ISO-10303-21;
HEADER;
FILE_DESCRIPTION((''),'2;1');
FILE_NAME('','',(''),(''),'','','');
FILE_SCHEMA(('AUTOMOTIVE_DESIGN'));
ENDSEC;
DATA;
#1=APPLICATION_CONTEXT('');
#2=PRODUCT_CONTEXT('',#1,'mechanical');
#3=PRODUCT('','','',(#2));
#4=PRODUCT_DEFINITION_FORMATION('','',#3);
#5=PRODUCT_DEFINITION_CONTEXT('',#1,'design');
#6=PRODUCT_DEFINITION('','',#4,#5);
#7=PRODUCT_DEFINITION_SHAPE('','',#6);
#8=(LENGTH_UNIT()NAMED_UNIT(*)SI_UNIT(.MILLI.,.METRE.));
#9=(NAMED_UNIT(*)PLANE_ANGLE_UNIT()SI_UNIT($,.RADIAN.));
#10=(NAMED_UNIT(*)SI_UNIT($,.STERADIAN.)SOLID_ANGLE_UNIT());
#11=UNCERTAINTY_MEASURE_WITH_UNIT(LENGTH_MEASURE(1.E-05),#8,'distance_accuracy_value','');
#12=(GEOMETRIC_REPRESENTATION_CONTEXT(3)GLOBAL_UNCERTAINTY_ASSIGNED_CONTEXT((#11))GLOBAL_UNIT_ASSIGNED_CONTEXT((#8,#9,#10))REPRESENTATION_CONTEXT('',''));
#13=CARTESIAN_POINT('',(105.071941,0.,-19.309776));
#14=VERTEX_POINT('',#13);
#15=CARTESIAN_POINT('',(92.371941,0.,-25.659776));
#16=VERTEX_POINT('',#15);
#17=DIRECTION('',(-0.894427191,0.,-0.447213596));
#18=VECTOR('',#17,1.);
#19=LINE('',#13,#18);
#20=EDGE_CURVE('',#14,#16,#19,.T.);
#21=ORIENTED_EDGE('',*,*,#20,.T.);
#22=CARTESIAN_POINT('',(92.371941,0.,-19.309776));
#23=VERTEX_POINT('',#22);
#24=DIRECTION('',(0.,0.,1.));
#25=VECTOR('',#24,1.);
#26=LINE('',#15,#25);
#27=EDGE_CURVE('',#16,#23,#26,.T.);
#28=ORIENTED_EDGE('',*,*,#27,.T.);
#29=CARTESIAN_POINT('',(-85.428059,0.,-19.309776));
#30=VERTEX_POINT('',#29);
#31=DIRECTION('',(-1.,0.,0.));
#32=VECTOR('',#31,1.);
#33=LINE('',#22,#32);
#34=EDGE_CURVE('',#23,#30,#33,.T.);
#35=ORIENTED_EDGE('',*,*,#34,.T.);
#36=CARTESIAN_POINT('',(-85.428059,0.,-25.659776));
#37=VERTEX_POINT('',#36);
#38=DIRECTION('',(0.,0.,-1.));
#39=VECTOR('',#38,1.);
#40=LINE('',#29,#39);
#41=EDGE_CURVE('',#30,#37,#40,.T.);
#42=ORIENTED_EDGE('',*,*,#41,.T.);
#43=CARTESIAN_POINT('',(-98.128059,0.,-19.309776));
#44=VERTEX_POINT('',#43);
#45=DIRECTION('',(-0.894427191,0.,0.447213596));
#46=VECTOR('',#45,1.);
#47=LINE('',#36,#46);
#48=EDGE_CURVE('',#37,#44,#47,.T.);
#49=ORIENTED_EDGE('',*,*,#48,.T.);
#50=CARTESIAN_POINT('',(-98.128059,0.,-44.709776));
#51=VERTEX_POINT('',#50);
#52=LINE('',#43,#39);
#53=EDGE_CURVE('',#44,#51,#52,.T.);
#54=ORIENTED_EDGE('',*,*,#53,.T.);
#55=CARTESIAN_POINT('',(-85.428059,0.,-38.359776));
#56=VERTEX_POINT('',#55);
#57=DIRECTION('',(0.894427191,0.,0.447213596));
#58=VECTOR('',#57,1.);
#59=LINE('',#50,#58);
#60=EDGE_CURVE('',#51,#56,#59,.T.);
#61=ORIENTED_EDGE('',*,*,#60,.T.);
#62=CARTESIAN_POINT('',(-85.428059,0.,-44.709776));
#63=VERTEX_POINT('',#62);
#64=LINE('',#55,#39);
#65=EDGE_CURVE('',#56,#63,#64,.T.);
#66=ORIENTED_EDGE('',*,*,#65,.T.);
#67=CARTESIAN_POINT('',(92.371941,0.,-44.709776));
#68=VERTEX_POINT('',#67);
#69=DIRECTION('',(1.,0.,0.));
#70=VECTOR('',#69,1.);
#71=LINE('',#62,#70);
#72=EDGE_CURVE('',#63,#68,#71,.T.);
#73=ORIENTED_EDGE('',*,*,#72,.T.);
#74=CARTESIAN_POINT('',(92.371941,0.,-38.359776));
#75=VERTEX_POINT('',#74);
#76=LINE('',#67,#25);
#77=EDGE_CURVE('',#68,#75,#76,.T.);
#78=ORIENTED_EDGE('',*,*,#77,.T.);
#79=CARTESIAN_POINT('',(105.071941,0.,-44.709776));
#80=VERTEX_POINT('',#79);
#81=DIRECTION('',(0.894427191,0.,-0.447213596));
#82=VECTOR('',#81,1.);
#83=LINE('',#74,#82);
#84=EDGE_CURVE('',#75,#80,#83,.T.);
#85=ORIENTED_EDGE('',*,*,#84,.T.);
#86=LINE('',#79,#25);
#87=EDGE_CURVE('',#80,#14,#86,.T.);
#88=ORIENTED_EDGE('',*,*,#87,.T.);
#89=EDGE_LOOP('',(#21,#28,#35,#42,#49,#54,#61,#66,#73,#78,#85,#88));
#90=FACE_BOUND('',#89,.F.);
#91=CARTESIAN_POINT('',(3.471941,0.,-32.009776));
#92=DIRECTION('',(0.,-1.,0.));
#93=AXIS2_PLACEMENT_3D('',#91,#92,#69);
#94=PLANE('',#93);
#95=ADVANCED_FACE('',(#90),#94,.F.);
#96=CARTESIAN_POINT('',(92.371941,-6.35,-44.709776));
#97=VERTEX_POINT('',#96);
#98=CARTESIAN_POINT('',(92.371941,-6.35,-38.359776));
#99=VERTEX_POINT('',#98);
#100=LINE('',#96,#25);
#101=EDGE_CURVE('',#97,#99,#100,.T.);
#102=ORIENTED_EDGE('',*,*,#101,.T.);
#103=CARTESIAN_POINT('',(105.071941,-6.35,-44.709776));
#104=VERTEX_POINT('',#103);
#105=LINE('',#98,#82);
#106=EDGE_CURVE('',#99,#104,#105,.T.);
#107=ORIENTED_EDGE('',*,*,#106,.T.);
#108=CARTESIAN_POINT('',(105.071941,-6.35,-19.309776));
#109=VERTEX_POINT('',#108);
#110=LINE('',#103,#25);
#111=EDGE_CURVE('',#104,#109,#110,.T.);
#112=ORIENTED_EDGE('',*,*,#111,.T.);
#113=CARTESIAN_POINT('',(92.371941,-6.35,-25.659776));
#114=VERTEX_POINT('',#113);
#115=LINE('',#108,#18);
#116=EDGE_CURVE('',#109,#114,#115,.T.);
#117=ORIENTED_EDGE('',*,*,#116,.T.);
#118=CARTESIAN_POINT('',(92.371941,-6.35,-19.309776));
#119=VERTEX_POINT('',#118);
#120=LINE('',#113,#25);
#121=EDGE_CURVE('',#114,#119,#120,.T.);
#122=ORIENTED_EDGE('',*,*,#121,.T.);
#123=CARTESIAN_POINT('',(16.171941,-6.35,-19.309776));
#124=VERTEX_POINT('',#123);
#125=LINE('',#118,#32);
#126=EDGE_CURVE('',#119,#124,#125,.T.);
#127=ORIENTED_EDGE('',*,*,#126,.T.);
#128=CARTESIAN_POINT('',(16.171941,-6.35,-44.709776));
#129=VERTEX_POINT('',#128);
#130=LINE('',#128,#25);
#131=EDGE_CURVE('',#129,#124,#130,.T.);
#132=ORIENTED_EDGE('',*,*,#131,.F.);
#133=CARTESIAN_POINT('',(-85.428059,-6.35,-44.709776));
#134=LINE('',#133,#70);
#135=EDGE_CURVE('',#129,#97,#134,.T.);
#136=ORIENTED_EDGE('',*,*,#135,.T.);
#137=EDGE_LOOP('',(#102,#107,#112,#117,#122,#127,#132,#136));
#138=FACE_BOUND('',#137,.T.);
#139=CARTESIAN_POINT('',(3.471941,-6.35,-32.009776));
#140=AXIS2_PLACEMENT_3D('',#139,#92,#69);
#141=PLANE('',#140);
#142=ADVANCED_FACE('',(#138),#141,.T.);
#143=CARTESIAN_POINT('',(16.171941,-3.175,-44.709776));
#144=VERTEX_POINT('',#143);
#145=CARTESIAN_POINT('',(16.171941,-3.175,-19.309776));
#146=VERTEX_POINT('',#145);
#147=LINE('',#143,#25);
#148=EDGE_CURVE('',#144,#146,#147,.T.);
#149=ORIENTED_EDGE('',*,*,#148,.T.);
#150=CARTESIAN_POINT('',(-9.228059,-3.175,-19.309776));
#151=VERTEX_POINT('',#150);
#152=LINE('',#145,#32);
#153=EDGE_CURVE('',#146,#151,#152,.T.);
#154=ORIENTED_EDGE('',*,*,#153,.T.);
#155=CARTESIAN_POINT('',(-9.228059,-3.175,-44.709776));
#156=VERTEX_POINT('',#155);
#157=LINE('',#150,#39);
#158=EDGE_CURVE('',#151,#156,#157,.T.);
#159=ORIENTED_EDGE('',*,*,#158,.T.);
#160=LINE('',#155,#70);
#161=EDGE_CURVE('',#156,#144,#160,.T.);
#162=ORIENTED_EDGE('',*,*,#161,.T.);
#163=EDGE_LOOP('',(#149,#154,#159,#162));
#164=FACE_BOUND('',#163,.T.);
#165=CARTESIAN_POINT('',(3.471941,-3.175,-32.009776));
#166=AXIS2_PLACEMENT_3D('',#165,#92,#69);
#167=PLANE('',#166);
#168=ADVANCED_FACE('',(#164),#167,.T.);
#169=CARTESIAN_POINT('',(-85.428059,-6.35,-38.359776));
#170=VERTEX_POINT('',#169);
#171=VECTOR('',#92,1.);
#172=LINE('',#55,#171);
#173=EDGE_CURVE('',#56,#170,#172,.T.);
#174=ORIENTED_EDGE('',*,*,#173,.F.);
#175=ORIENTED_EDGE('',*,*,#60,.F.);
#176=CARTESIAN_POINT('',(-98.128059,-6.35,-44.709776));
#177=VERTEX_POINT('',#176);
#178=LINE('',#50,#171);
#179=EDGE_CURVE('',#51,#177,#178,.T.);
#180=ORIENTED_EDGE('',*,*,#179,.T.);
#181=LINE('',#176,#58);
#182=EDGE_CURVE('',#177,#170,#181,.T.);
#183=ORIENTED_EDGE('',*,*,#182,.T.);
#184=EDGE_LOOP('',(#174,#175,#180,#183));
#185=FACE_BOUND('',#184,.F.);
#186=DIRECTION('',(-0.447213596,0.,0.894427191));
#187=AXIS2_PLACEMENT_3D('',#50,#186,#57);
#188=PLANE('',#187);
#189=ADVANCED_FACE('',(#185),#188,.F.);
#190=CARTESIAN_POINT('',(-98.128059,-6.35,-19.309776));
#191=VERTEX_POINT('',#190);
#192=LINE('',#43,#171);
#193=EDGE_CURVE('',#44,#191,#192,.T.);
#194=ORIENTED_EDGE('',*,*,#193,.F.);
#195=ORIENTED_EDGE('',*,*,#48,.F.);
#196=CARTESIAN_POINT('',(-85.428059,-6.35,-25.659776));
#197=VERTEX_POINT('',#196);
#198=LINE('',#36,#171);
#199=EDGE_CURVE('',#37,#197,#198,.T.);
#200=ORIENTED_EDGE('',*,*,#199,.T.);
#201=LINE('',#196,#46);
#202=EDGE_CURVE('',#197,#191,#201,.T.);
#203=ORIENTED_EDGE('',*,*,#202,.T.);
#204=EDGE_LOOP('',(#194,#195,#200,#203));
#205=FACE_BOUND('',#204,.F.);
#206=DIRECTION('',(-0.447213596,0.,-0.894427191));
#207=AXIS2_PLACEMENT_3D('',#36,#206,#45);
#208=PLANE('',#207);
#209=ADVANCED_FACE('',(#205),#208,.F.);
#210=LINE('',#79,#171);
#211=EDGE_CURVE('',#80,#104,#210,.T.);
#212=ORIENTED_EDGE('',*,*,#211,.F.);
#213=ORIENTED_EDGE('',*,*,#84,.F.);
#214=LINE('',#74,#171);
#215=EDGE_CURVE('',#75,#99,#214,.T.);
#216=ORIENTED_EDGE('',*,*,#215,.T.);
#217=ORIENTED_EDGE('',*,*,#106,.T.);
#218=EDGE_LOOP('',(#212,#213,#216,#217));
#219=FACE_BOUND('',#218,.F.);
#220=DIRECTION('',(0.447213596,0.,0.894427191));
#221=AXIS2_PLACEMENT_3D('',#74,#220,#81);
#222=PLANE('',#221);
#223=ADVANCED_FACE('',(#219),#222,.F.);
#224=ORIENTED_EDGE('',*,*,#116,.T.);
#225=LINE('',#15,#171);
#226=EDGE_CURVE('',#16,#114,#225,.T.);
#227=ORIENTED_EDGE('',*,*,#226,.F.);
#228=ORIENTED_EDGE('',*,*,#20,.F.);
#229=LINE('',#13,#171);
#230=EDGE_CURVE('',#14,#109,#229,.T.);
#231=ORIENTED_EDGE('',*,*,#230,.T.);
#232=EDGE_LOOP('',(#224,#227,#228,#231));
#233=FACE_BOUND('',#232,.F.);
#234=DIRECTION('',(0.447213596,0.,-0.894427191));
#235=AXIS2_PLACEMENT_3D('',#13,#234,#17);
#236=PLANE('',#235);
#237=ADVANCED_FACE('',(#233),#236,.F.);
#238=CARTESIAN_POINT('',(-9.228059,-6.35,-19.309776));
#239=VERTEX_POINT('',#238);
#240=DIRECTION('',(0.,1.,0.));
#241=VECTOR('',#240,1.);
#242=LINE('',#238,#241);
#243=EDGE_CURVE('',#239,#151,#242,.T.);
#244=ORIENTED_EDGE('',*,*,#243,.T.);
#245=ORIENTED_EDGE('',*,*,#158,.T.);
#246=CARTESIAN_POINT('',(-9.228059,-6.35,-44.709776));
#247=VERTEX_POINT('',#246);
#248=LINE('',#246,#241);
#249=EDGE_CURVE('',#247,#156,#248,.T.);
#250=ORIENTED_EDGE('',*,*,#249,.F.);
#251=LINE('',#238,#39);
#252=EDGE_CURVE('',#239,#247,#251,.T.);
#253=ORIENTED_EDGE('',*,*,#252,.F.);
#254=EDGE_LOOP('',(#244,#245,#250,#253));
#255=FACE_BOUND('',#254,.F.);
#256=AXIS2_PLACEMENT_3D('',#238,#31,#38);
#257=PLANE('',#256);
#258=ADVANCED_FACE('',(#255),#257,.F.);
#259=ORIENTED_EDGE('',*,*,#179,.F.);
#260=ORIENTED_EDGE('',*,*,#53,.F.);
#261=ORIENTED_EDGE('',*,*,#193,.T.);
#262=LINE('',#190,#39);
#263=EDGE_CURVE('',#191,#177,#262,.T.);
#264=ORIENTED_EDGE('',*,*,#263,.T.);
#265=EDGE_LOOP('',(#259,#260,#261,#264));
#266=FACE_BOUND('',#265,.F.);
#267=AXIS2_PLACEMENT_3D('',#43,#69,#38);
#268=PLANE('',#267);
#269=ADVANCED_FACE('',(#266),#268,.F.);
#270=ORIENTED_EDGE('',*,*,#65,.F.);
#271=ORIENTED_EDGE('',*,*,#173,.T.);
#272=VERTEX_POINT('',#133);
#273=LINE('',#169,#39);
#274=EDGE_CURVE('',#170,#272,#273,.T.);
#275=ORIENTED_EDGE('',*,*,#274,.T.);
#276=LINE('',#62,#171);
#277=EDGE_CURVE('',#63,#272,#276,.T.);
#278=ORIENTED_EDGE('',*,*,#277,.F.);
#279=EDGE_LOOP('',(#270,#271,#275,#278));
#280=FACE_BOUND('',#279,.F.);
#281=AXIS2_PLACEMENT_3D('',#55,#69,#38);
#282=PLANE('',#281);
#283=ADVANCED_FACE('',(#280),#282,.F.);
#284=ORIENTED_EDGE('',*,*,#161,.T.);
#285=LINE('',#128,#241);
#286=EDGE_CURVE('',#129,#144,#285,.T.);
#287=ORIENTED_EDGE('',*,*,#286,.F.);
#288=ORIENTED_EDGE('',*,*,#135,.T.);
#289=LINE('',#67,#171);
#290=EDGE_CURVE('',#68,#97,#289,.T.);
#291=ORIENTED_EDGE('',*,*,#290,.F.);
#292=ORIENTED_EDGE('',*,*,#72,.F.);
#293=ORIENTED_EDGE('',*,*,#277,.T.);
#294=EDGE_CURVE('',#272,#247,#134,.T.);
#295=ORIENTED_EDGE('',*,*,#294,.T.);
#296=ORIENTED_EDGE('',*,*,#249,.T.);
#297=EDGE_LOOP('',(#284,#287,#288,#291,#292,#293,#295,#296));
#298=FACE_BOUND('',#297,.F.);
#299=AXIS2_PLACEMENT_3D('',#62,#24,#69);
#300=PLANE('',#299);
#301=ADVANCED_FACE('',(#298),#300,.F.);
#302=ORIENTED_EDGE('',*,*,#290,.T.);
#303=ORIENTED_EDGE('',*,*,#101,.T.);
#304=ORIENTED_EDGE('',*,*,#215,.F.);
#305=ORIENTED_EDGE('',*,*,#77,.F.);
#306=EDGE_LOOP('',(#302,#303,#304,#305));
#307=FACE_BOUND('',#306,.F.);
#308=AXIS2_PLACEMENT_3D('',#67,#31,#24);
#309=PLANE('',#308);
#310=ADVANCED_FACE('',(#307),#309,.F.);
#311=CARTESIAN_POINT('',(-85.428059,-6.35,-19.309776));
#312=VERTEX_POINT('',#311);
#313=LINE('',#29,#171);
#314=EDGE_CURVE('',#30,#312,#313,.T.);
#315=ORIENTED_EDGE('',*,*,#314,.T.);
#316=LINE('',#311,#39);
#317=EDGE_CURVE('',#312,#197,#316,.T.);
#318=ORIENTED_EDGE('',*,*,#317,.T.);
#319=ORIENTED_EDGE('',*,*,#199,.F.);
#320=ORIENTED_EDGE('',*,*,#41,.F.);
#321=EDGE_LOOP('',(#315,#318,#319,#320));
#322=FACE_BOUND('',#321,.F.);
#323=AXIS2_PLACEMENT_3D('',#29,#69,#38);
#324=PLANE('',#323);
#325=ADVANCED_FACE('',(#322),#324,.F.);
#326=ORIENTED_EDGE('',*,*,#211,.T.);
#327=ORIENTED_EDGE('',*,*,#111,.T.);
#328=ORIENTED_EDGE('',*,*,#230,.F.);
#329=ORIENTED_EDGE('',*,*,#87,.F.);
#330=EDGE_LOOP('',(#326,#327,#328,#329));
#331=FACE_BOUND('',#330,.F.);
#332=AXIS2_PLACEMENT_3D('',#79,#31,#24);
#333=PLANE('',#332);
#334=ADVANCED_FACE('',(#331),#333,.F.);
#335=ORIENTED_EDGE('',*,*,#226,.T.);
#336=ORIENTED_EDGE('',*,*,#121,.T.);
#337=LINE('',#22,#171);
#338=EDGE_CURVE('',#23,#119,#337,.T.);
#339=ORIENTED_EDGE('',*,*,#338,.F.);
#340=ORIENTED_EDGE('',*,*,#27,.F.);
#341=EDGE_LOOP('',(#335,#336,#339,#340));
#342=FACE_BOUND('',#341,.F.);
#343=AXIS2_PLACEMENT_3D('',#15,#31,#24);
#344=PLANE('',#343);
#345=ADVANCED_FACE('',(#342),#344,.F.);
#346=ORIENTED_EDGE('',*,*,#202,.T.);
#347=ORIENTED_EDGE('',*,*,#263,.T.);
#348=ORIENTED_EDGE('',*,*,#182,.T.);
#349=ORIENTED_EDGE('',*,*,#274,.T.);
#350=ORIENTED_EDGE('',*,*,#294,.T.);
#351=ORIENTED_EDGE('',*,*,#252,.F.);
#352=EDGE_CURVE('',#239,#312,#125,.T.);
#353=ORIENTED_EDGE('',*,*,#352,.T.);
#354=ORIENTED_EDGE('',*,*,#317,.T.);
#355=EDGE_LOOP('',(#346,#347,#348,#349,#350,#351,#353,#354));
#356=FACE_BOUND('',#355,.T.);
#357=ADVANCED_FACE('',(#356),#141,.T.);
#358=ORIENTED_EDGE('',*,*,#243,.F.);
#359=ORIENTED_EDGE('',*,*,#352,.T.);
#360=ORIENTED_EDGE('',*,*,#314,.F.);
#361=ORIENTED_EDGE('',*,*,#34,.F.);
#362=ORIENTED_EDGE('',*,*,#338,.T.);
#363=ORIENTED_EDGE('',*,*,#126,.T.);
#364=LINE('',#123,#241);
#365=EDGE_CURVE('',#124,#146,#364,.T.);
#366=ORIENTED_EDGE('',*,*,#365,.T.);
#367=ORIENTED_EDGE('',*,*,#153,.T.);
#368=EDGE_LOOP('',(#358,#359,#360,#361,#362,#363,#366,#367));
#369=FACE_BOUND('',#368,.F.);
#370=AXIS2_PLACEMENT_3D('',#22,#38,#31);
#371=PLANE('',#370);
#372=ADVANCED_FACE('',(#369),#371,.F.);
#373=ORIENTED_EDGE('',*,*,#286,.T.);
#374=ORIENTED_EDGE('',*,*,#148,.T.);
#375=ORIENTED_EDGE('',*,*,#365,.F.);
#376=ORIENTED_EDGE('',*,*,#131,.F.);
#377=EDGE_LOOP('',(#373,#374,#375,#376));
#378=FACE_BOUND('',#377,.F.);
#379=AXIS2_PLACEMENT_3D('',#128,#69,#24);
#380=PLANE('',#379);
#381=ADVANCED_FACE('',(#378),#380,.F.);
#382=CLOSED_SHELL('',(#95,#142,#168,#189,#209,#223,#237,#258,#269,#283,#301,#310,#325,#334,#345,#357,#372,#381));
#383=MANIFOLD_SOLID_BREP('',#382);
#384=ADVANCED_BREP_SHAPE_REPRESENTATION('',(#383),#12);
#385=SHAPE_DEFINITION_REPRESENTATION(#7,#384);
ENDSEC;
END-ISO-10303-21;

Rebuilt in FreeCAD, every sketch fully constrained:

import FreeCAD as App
import Part
import Sketcher
Q = App.Units.Quantity

doc = App.newDocument("Part")
body = doc.addObject("PartDesign::Body", "Body")

# Sketch on XZ plane
sketch1 = doc.addObject("Sketcher::SketchObject", "Sketch")
body.addObject(sketch1)
sketch1.AttachmentSupport = (doc.XZ_Plane, [""])
sketch1.MapMode = "FlatFace"
sketch1.addGeometry([
    Part.LineSegment(App.Vector(-85, -26, 0), App.Vector(-98, -19, 0)),  # 0
    Part.LineSegment(App.Vector(-98, -19, 0), App.Vector(-98, -45, 0)),  # 1
    Part.LineSegment(App.Vector(-98, -45, 0), App.Vector(-85, -38, 0)),  # 2
    Part.LineSegment(App.Vector(-85, -38, 0), App.Vector(-85, -45, 0)),  # 3
    Part.LineSegment(App.Vector(-85, -45, 0), App.Vector(92, -45, 0)),  # 4
    Part.LineSegment(App.Vector(92, -45, 0), App.Vector(92, -38, 0)),  # 5
    Part.LineSegment(App.Vector(92, -38, 0), App.Vector(105, -45, 0)),  # 6
    Part.LineSegment(App.Vector(105, -45, 0), App.Vector(105, -19, 0)),  # 7
    Part.LineSegment(App.Vector(105, -19, 0), App.Vector(92, -26, 0)),  # 8
    Part.LineSegment(App.Vector(92, -26, 0), App.Vector(92, -19, 0)),  # 9
    Part.LineSegment(App.Vector(92, -19, 0), App.Vector(-85, -19, 0)),  # 10
    Part.LineSegment(App.Vector(-85, -19, 0), App.Vector(-85, -26, 0)),  # 11
], False)
sketch1.addConstraint([
    Sketcher.Constraint("Coincident", 0, 2, 1, 1),
    Sketcher.Constraint("Coincident", 1, 2, 2, 1),
    Sketcher.Constraint("Coincident", 2, 2, 3, 1),
    Sketcher.Constraint("Coincident", 3, 2, 4, 1),
    Sketcher.Constraint("Coincident", 4, 2, 5, 1),
    Sketcher.Constraint("Coincident", 5, 2, 6, 1),
    Sketcher.Constraint("Coincident", 6, 2, 7, 1),
    Sketcher.Constraint("Coincident", 7, 2, 8, 1),
    Sketcher.Constraint("Coincident", 8, 2, 9, 1),
    Sketcher.Constraint("Coincident", 9, 2, 10, 1),
    Sketcher.Constraint("Coincident", 10, 2, 11, 1),
    Sketcher.Constraint("Coincident", 11, 2, 0, 1),
    Sketcher.Constraint("Vertical", 1),
    Sketcher.Constraint("Vertical", 3),
    Sketcher.Constraint("Horizontal", 4),
    Sketcher.Constraint("Vertical", 5),
    Sketcher.Constraint("Vertical", 7),
    Sketcher.Constraint("Vertical", 9),
    Sketcher.Constraint("Horizontal", 10),
    Sketcher.Constraint("Vertical", 11),
    Sketcher.Constraint("Parallel", 0, 6),
    Sketcher.Constraint("Parallel", 2, 8),
    Sketcher.Constraint("Horizontal", 1, 2, 3, 2),
    Sketcher.Constraint("Horizontal", 2, 2, 5, 2),
    Sketcher.Constraint("Horizontal", 4, 2, 6, 2),
    Sketcher.Constraint("Horizontal", 0, 2, 7, 2),
    Sketcher.Constraint("Horizontal", 7, 2, 9, 2),
    Sketcher.Constraint("Horizontal", 8, 2, 11, 2),
    Sketcher.Constraint("Vertical", 5, 2, 8, 2),
    Sketcher.Constraint("Vertical", 3, 2, 10, 2),
    Sketcher.Constraint("DistanceX", 4, 1, 4, 2, Q("7 in")),
    Sketcher.Constraint("DistanceY", 1, 2, 1, 1, Q("1 in")),
    Sketcher.Constraint("DistanceX", 1, 2, 6, 2, Q("8 in")),
    Sketcher.Constraint("DistanceY", 3, 2, 3, 1, Q("0.25 in")),
    Sketcher.Constraint("DistanceX", 0, 2, -1, 1, 98.128059),
    Sketcher.Constraint("DistanceY", 0, 2, -1, 1, 19.309776),
])
pad1 = doc.addObject("PartDesign::Pad", "Pad")
body.addObject(pad1)
pad1.Profile = sketch1
pad1.Length = Q("0.25 in")

# Sketch on XZ plane
sketch2 = doc.addObject("Sketcher::SketchObject", "Sketch001")
body.addObject(sketch2)
sketch2.AttachmentSupport = (doc.XZ_Plane, [""])
sketch2.MapMode = "FlatFace"
sketch2.AttachmentOffset = App.Placement(App.Vector(0, 0, 0.25 * 25.4), App.Rotation())
sketch2.addGeometry([
    Part.LineSegment(App.Vector(16, -19, 0), App.Vector(-9, -19, 0)),
    Part.LineSegment(App.Vector(-9, -19, 0), App.Vector(-9, -45, 0)),
    Part.LineSegment(App.Vector(-9, -45, 0), App.Vector(16, -45, 0)),
    Part.LineSegment(App.Vector(16, -45, 0), App.Vector(16, -19, 0)),
], False)
sketch2.addConstraint([
    Sketcher.Constraint("Coincident", 0, 2, 1, 1),
    Sketcher.Constraint("Coincident", 1, 2, 2, 1),
    Sketcher.Constraint("Coincident", 2, 2, 3, 1),
    Sketcher.Constraint("Coincident", 3, 2, 0, 1),
    Sketcher.Constraint("Horizontal", 0),
    Sketcher.Constraint("Vertical", 1),
    Sketcher.Constraint("Horizontal", 2),
    Sketcher.Constraint("Vertical", 3),
    Sketcher.Constraint("Equal", 2, 1),
    Sketcher.Constraint("DistanceX", 0, 2, 0, 1, Q("1 in")),
    Sketcher.Constraint("DistanceX", 0, 2, -1, 1, 9.228059),
    Sketcher.Constraint("DistanceY", 0, 2, -1, 1, 19.309776),
])
pocket1 = doc.addObject("PartDesign::Pocket", "Pocket")
body.addObject(pocket1)
pocket1.Profile = sketch2
pocket1.Length = Q("0.125 in")

doc.recompute()
